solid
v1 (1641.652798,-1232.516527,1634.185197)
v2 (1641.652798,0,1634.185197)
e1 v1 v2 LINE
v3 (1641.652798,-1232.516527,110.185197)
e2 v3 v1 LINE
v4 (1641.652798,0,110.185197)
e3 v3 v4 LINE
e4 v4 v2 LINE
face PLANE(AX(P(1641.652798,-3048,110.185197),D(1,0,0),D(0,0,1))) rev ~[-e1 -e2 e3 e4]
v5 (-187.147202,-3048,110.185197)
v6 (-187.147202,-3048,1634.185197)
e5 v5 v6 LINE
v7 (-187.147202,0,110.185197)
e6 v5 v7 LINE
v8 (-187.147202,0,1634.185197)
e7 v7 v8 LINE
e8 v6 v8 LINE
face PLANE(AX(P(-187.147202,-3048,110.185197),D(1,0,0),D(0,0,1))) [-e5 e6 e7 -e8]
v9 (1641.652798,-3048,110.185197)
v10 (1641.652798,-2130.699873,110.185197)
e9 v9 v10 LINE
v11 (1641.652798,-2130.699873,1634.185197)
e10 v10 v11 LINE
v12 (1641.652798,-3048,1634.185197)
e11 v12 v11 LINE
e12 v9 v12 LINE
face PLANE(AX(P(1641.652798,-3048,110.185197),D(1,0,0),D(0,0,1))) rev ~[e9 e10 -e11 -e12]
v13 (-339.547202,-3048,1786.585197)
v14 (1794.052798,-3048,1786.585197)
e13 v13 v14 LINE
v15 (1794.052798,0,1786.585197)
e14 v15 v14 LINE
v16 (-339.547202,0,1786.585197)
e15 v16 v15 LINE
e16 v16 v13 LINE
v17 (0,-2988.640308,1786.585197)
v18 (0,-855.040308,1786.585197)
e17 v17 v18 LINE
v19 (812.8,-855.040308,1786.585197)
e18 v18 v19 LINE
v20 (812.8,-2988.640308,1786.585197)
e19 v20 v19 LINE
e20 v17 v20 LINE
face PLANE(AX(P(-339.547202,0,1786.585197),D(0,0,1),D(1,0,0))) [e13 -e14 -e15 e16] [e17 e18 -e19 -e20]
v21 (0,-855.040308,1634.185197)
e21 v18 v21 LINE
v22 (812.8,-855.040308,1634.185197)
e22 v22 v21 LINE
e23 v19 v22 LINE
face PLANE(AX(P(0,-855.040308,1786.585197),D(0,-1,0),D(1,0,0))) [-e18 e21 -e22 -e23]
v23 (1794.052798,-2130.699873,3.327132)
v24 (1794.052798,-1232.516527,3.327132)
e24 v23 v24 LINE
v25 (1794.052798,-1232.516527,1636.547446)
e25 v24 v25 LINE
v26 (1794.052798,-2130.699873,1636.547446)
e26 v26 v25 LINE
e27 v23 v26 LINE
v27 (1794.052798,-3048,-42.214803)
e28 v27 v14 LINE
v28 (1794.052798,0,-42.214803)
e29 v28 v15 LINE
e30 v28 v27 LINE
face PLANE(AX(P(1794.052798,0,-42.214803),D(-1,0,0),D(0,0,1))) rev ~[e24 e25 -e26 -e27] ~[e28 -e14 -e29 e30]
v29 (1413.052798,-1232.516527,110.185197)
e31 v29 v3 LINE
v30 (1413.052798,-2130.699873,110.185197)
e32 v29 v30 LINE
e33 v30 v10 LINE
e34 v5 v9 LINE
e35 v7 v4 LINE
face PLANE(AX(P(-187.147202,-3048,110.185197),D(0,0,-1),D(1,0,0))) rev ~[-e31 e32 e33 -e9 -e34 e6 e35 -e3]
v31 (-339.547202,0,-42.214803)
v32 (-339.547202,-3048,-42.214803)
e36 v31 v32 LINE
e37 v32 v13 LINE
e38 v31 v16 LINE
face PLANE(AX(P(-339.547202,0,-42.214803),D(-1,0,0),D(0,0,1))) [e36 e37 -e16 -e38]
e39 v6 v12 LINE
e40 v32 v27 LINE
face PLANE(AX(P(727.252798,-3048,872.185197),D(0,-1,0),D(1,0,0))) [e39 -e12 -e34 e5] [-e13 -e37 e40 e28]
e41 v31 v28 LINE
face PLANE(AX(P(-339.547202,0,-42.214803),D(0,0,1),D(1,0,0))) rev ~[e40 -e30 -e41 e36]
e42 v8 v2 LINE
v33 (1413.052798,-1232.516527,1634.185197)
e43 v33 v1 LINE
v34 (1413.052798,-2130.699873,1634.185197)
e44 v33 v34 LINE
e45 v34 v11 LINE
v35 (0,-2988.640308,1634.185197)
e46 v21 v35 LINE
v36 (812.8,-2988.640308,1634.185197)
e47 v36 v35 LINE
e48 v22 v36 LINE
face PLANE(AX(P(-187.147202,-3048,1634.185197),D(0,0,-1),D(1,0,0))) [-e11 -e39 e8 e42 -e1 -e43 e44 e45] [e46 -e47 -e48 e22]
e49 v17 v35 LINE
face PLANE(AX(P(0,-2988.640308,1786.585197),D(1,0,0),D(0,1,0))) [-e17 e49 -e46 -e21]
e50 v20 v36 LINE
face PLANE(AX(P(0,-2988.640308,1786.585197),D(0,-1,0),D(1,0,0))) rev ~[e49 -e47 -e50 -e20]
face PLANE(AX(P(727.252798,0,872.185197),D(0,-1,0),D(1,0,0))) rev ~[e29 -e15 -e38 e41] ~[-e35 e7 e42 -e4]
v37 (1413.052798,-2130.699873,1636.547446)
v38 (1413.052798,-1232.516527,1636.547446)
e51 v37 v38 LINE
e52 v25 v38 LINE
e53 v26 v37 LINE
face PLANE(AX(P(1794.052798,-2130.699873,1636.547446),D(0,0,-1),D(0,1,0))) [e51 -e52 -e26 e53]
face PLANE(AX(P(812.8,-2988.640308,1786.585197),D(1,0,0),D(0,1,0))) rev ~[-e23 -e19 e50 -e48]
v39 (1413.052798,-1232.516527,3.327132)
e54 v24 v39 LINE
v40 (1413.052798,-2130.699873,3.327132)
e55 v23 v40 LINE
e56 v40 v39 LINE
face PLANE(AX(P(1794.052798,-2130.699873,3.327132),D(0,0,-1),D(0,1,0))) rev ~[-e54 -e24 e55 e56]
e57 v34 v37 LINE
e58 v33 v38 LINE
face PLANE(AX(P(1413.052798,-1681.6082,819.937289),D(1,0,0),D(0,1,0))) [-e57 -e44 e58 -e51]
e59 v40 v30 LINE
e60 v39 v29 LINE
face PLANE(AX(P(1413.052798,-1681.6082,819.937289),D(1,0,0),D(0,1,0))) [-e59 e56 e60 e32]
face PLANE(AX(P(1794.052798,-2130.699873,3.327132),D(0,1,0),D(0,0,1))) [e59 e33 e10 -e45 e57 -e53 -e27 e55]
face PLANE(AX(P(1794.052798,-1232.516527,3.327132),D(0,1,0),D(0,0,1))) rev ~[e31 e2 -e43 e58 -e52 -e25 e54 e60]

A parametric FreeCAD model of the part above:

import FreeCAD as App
import Part
import Sketcher

V = App.Vector
Q = App.Units.Quantity


def add_polygon(sketch, points):
    """Adds a closed chain of lines whose ends are joined by coincident constraints."""
    first, n = sketch.GeometryCount, len(points)
    for a, b in zip(points, points[1:] + points[:1]):
        sketch.addGeometry(Part.LineSegment(App.Vector(*a, 0), App.Vector(*b, 0)), False)
    for i in range(n):
        sketch.addConstraint(Sketcher.Constraint("Coincident", first + i, 2, first + (i + 1) % n, 1))

doc = App.newDocument("Part")
body = doc.addObject("PartDesign::Body", "Body")

sketch1 = doc.addObject("Sketcher::SketchObject", "Sketch")
body.addObject(sketch1)
sketch1.AttachmentSupport = (doc.XZ_Plane, [""])
sketch1.MapMode = "FlatFace"
add_polygon(sketch1, [(-340, 1787), (-340, -42), (1794, -42), (1794, 1787)])
sketch1.addConstraint([
    Sketcher.Constraint("Vertical", 0),
    Sketcher.Constraint("Horizontal", 1),
    Sketcher.Constraint("Vertical", 2),
    Sketcher.Constraint("Horizontal", 3),
    Sketcher.Constraint("DistanceX", 1, 1, 1, 2, Q("84 in")),
    Sketcher.Constraint("DistanceY", 0, 2, 0, 1, Q("72 in")),
    Sketcher.Constraint("DistanceX", 0, 2, -1, 1, Q("13.3680001 in")),
    Sketcher.Constraint("DistanceY", 0, 2, -1, 1, Q("1.6620001 in")),
])
pad1 = doc.addObject("PartDesign::Pad", "Pad")
body.addObject(pad1)
pad1.Profile = sketch1
pad1.Length = Q("120 in")

sketch2 = doc.addObject("Sketcher::SketchObject", "Sketch001")
body.addObject(sketch2)
sketch2.AttachmentSupport = (doc.XZ_Plane, [""])
sketch2.MapMode = "FlatFace"
sketch2.AttachmentOffset = App.Placement(V(0, 0, 120 * 25.4), App.Rotation())
add_polygon(sketch2, [(-187, 1634), (-187, 110), (1642, 110), (1642, 1634)])
sketch2.addConstraint([
    Sketcher.Constraint("Vertical", 0),
    Sketcher.Constraint("Horizontal", 1),
    Sketcher.Constraint("Vertical", 2),
    Sketcher.Constraint("Horizontal", 3),
    Sketcher.Constraint("DistanceX", 1, 1, 1, 2, Q("72 in")),
    Sketcher.Constraint("DistanceY", 0, 2, 0, 1, Q("60 in")),
    Sketcher.Constraint("DistanceX", 0, 2, -1, 1, Q("7.3680001 in")),
    Sketcher.Constraint("DistanceY", -1, 1, 0, 2, Q("4.3379999 in")),
])
pocket1 = doc.addObject("PartDesign::Pocket", "Pocket")
body.addObject(pocket1)
pocket1.Profile = sketch2
pocket1.Length = Q("130 in")

sketch3 = doc.addObject("Sketcher::SketchObject", "Sketch002")
body.addObject(sketch3)
sketch3.AttachmentSupport = (doc.XY_Plane, [""])
sketch3.MapMode = "FlatFace"
sketch3.AttachmentOffset = App.Placement(V(0, 0, 70.3379999 * 25.4), App.Rotation())
add_polygon(sketch3, [(0, -855), (0, -2989), (813, -2989), (813, -855)])
sketch3.addConstraint([
    Sketcher.Constraint("Vertical", 0),
    Sketcher.Constraint("Horizontal", 1),
    Sketcher.Constraint("Vertical", 2),
    Sketcher.Constraint("Horizontal", 3),
    Sketcher.Constraint("PointOnObject", 0, 2, -2),
    Sketcher.Constraint("DistanceX", 1, 1, 1, 2, Q("32 in")),
    Sketcher.Constraint("DistanceY", 0, 2, 0, 1, Q("84 in")),
    Sketcher.Constraint("DistanceY", 2, 2, -1, 1, Q("855.040308 mm")),
])
pocket2 = doc.addObject("PartDesign::Pocket", "Pocket001")
body.addObject(pocket2)
pocket2.Profile = sketch3
pocket2.Length = Q("12 in")

sketch4 = doc.addObject("Sketcher::SketchObject", "Sketch003")
body.addObject(sketch4)
sketch4.AttachmentSupport = (doc.YZ_Plane, [""])
sketch4.MapMode = "FlatFace"
sketch4.AttachmentOffset = App.Placement(V(0, 0, 70.6319999 * 25.4), App.Rotation())
add_polygon(sketch4, [(-2131, 1637), (-2131, 3), (-1233, 3), (-1233, 1637)])
sketch4.addConstraint([
    Sketcher.Constraint("Vertical", 0),
    Sketcher.Constraint("Horizontal", 1),
    Sketcher.Constraint("Vertical", 2),
    Sketcher.Constraint("Horizontal", 3),
    Sketcher.Constraint("DistanceX", 1, 1, 1, 2, Q("898.183346 mm")),
    Sketcher.Constraint("DistanceY", 0, 2, 0, 1, Q("1633.220315 mm")),
    Sketcher.Constraint("DistanceY", -1, 1, 0, 2, Q("3.327132 mm")),
    Sketcher.Constraint("DistanceX", 0, 2, -1, 1, Q("2130.699873 mm")),
])
pocket3 = doc.addObject("PartDesign::Pocket", "Pocket002")
body.addObject(pocket3)
pocket3.Profile = sketch4
pocket3.Length = Q("15 in")

doc.recompute()
